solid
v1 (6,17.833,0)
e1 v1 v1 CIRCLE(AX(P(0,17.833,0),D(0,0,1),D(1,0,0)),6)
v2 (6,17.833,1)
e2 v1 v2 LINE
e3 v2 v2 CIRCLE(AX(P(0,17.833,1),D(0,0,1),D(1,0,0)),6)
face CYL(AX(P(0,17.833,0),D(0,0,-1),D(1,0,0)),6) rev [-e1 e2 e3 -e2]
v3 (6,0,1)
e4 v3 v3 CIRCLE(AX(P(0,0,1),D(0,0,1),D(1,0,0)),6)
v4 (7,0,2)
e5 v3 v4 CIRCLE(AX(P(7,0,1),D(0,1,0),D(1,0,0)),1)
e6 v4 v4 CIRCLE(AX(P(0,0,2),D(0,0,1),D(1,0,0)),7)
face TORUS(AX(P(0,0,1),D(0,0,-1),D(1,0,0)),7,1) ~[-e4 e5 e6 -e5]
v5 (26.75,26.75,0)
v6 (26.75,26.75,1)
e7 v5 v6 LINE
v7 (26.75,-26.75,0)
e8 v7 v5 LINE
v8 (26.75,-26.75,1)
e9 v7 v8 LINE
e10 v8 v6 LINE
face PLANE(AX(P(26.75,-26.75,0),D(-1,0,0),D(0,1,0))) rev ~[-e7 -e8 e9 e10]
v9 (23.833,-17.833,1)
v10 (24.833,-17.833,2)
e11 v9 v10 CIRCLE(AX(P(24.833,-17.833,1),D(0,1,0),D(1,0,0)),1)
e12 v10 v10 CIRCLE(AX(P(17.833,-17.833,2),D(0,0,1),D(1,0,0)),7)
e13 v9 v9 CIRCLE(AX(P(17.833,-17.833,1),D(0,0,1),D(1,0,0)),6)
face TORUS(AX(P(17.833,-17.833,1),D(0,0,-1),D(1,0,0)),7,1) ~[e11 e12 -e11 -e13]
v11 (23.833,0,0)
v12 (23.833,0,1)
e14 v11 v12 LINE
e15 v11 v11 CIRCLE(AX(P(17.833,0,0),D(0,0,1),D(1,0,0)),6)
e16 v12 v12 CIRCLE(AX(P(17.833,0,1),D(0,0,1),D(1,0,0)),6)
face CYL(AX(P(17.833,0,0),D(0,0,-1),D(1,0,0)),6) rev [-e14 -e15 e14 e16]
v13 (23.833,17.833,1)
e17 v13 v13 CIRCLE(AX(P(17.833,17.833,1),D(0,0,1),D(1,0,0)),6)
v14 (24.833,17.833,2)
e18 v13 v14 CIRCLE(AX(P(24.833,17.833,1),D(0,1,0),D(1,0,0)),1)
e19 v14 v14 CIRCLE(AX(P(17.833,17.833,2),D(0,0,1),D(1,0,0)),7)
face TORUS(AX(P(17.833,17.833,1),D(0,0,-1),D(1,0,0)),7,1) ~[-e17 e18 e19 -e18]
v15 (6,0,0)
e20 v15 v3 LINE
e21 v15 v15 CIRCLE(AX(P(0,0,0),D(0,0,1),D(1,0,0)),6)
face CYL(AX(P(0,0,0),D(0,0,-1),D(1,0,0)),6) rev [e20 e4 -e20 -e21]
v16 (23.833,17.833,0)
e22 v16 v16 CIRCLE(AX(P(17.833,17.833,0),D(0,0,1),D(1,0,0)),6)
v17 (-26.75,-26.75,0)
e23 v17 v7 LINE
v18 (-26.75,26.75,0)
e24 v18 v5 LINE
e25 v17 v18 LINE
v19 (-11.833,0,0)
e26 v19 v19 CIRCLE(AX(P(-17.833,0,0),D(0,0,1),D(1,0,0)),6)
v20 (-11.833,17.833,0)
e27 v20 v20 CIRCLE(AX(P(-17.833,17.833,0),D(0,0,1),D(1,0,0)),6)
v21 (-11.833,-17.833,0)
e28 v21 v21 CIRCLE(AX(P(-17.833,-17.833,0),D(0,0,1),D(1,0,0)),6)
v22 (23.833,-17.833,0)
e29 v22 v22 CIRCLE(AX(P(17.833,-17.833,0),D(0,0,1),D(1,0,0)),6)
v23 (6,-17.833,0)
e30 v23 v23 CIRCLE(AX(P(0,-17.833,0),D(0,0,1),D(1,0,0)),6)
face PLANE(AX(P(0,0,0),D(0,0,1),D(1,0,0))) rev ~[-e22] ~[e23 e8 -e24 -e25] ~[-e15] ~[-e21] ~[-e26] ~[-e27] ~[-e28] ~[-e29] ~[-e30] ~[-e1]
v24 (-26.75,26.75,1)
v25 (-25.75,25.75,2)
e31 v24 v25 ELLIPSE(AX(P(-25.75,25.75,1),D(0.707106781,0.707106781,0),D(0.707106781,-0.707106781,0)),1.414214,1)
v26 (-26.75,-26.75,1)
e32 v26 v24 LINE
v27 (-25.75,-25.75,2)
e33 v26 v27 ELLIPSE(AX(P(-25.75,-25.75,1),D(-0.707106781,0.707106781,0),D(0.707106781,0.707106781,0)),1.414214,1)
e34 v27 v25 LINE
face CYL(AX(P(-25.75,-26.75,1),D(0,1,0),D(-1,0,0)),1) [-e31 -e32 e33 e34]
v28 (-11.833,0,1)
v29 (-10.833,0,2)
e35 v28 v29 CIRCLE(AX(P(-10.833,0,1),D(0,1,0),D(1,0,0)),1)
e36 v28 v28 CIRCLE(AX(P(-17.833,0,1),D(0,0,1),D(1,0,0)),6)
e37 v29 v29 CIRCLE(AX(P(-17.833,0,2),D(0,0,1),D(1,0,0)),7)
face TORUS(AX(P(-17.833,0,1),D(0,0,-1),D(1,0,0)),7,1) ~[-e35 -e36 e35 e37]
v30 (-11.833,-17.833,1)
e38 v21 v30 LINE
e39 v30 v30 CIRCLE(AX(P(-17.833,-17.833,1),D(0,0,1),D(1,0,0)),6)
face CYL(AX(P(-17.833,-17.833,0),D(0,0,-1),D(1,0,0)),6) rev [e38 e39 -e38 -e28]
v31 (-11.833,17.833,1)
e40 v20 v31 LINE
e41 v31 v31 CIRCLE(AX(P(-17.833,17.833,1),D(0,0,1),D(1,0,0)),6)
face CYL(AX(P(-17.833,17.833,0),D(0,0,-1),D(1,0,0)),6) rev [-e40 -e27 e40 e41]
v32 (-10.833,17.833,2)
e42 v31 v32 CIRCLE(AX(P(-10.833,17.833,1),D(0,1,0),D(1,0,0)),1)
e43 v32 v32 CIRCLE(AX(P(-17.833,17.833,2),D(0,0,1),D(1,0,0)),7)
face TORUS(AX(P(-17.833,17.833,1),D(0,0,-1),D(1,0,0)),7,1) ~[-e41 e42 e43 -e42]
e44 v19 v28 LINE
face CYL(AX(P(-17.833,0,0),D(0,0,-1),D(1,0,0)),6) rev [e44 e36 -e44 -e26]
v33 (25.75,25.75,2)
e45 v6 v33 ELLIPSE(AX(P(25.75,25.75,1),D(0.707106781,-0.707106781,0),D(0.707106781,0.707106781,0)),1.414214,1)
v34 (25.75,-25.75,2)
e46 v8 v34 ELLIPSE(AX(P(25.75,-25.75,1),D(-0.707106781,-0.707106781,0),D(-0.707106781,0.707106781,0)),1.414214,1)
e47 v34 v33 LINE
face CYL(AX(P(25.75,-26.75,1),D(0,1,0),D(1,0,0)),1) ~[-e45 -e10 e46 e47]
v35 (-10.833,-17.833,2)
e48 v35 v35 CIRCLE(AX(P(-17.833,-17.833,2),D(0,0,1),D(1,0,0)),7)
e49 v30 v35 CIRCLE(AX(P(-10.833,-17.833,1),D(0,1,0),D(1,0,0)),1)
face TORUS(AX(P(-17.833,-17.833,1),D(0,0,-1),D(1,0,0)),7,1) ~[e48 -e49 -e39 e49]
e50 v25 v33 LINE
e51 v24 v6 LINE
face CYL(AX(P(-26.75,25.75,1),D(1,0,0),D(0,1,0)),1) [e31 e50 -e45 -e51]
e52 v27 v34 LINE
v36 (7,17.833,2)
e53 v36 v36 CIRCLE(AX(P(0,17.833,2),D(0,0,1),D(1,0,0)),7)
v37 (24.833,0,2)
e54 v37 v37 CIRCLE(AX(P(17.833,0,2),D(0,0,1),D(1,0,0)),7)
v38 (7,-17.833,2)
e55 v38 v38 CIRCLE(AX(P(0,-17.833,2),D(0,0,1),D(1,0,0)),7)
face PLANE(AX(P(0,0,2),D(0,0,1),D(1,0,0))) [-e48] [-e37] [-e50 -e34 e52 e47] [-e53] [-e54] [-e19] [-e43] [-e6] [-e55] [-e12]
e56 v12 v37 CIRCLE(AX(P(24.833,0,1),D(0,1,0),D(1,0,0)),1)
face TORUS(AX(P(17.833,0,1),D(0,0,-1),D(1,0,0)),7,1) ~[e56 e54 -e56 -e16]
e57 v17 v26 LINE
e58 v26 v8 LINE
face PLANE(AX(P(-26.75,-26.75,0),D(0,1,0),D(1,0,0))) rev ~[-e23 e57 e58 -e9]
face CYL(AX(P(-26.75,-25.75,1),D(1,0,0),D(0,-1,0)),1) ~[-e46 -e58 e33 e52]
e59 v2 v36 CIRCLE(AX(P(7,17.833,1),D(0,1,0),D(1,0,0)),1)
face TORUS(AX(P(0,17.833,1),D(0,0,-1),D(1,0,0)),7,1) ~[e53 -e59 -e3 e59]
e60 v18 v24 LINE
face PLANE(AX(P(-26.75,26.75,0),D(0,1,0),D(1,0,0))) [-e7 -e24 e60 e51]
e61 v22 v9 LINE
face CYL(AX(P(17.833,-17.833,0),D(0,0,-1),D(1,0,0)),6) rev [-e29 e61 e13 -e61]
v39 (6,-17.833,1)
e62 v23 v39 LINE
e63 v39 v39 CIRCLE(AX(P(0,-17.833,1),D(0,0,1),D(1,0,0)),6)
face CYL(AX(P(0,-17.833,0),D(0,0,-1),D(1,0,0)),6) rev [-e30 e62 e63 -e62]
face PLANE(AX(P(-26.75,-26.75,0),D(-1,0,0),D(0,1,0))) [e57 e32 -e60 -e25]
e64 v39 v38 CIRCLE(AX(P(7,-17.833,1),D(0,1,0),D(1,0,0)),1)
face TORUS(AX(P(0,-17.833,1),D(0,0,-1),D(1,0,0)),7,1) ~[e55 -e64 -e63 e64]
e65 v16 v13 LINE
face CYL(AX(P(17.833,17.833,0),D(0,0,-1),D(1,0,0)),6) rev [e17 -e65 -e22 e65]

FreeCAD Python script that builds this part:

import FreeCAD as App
import Part
import Sketcher
from FreeCAD import Vector
Q = App.Units.Quantity


def edges_at(feature, points):
    """Names of the edges that pass closest to the given points."""
    edges = feature.Shape.Edges
    near = lambda p: min(range(len(edges)), key=lambda i: edges[i].distToShape(Part.Vertex(*p))[0])
    return sorted({f"Edge{near(p) + 1}" for p in points})


def add_polygon(sketch, points):
    """Adds a closed chain of lines whose ends are joined by coincident constraints."""
    first, n = sketch.GeometryCount, len(points)
    for a, b in zip(points, points[1:] + points[:1]):
        sketch.addGeometry(Part.LineSegment(App.Vector(*a, 0), App.Vector(*b, 0)), False)
    for i in range(n):
        sketch.addConstraint(Sketcher.Constraint("Coincident", first + i, 2, first + (i + 1) % n, 1))

doc = App.newDocument("Part")
body = doc.addObject("PartDesign::Body", "Body")

sketch1 = body.newObject("Sketcher::SketchObject", "Sketch")
sketch1.AttachmentSupport = (doc.getObject("XY_Plane"), [""])
sketch1.MapMode = "FlatFace"
add_polygon(sketch1, [(-26.75, 26.75), (-26.75, -26.75), (26.75, -26.75), (26.75, 26.75)])
sketch1.addGeometry(Part.Circle(Vector(-17.833, -17.833, 0), Vector(0, 0, 1), 6), False)
sketch1.addGeometry(Part.Circle(Vector(0, -17.833, 0), Vector(0, 0, 1), 6), False)
sketch1.addGeometry(Part.Circle(Vector(17.833, -17.833, 0), Vector(0, 0, 1), 6), False)
sketch1.addGeometry(Part.Circle(Vector(-17.833, 0, 0), Vector(0, 0, 1), 6), False)
sketch1.addGeometry(Part.Circle(Vector(-17.833, 17.833, 0), Vector(0, 0, 1), 6), False)
sketch1.addGeometry(Part.Circle(Vector(0, 0, 0), Vector(0, 0, 1), 6), False)
sketch1.addGeometry(Part.Circle(Vector(17.833, 0, 0), Vector(0, 0, 1), 6), False)
sketch1.addGeometry(Part.Circle(Vector(0, 17.833, 0), Vector(0, 0, 1), 6), False)
sketch1.addGeometry(Part.Circle(Vector(17.833, 17.833, 0), Vector(0, 0, 1), 6), False)
sketch1.addConstraint(Sketcher.Constraint("Vertical", 0))
sketch1.addConstraint(Sketcher.Constraint("Horizontal", 1))
sketch1.addConstraint(Sketcher.Constraint("Vertical", 2))
sketch1.addConstraint(Sketcher.Constraint("Horizontal", 3))
sketch1.addConstraint(Sketcher.Constraint("Coincident", 9, 3, -1, 1))
sketch1.addConstraint(Sketcher.Constraint("Equal", 4, 5))
sketch1.addConstraint(Sketcher.Constraint("Equal", 5, 6))
sketch1.addConstraint(Sketcher.Constraint("Equal", 6, 7))
sketch1.addConstraint(Sketcher.Constraint("Equal", 7, 8))
sketch1.addConstraint(Sketcher.Constraint("Equal", 8, 9))
sketch1.addConstraint(Sketcher.Constraint("Equal", 9, 10))
sketch1.addConstraint(Sketcher.Constraint("Equal", 10, 11))
sketch1.addConstraint(Sketcher.Constraint("Equal", 11, 12))
sketch1.addConstraint(Sketcher.Constraint("Symmetric", 6, 3, 8, 3, -1, 1))
sketch1.addConstraint(Sketcher.Constraint("Symmetric", 7, 3, 10, 3, -1, 1))
sketch1.addConstraint(Sketcher.Constraint("Symmetric", 5, 3, 11, 3, -1, 1))
sketch1.addConstraint(Sketcher.Constraint("Symmetric", 4, 3, 12, 3, -1, 1))
sketch1.addConstraint(Sketcher.Constraint("Symmetric", 0, 2, 2, 2, -1, 1))
sketch1.addConstraint(Sketcher.Constraint("Symmetric", 4, 3, 6, 3, -2))
sketch1.addConstraint(Sketcher.Constraint("PointOnObject", 5, 3, -2))
sketch1.addConstraint(Sketcher.Constraint("PointOnObject", 7, 3, -1))
sketch1.addConstraint(Sketcher.Constraint("Horizontal", 4, 3, 5, 3))
sketch1.addConstraint(Sketcher.Constraint("Vertical", 4, 3, 7, 3))
sketch1.addConstraint(Sketcher.Constraint("Equal", 3, 0))
sketch1.addConstraint(Sketcher.Constraint("Diameter", 4, Q("12 mm")))
sketch1.addConstraint(Sketcher.Constraint("DistanceX", 1, 1, 1, 2, Q("53.5 mm")))
sketch1.addConstraint(Sketcher.Constraint("DistanceX", 4, 3, -1, 1, Q("17.833 mm")))
sketch1.addConstraint(Sketcher.Constraint("DistanceY", 4, 3, -1, 1, Q("17.833 mm")))
pad1 = body.newObject("PartDesign::Pad", "Pad")
pad1.Profile = sketch1
pad1.Length = 2
doc.recompute()

fillet = body.newObject("PartDesign::Fillet", "Fillet")
fillet.Base = (pad1, edges_at(pad1, [
    (26.75, 0, 2),
    (0, 26.75, 2),
    (-26.75, 0, 2),
    (0, -26.75, 2),
    (-23.833, -17.833, 2),
    (-6, -17.833, 2),
    (-23.833, 0, 2),
    (-6, 0, 2),
    (11.833, -17.833, 2),
    (11.833, 0, 2),
    (-23.833, 17.833, 2),
    (-6, 17.833, 2),
    (11.833, 17.833, 2),
]))
fillet.Radius = 1

doc.recompute()
